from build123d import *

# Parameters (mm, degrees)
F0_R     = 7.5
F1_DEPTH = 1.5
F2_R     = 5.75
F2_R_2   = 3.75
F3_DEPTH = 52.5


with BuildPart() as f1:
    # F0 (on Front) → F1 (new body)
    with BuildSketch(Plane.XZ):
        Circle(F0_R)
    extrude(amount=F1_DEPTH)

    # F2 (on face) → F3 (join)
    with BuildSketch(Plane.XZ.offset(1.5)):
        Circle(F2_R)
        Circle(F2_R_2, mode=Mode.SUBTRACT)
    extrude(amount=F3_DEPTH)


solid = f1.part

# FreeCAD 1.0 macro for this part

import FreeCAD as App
import Part
import Sketcher
from FreeCAD import Vector
Q = App.Units.Quantity

doc = App.newDocument("Part")
params = doc.addObject("Spreadsheet::Sheet", "Params")
for row, (alias, value) in enumerate([
    ("sketch1_diameter", "15 mm"),
    ("pad1_length", "1.5 mm"),
    ("sketch2_diameter", "11.5 mm"),
    ("sketch2_diameter2", "7.5 mm"),
    ("pad2_length", "52.5 mm"),
], start=1):
    params.set(f"A{row}", alias)
    params.set(f"B{row}", "=" + value)
    params.setAlias(f"B{row}", alias)

body = doc.addObject("PartDesign::Body", "Body")

sketch1 = doc.addObject("Sketcher::SketchObject", "Sketch")
body.addObject(sketch1)
sketch1.AttachmentSupport = (doc.XZ_Plane, [""])
sketch1.MapMode = "FlatFace"
sketch1.addGeometry(Part.Circle(Vector(0, 0, 0), Vector(0, 0, 1), 7.5), False)
sketch1.addConstraint([
    Sketcher.Constraint("Coincident", 0, 3, -1, 1),
    Sketcher.Constraint("Diameter", 0, Q("15 mm")),
])
sketch1.setExpression("Constraints[1]", "Params.sketch1_diameter")
pad1 = doc.addObject("PartDesign::Pad", "Pad")
body.addObject(pad1)
pad1.Profile = sketch1
pad1.setExpression("Length", "Params.pad1_length")

sketch2 = doc.addObject("Sketcher::SketchObject", "Sketch001")
body.addObject(sketch2)
sketch2.AttachmentSupport = (doc.XZ_Plane, [""])
sketch2.MapMode = "FlatFace"
sketch2.AttachmentOffset = App.Placement(Vector(0, 0, 1.5), App.Rotation())
sketch2.addGeometry([
    Part.Circle(Vector(0, 0, 0), Vector(0, 0, 1), 5.75),
    Part.Circle(Vector(0, 0, 0), Vector(0, 0, 1), 3.75),
], False)
sketch2.addConstraint([
    Sketcher.Constraint("Coincident", 0, 3, -1, 1),
    Sketcher.Constraint("Coincident", 1, 3, -1, 1),
    Sketcher.Constraint("Diameter", 0, Q("11.5 mm")),
    Sketcher.Constraint("Diameter", 1, Q("7.5 mm")),
])
sketch2.setExpression("Constraints[2]", "Params.sketch2_diameter")
sketch2.setExpression("Constraints[3]", "Params.sketch2_diameter2")
pad2 = doc.addObject("PartDesign::Pad", "Pad001")
body.addObject(pad2)
pad2.Profile = sketch2
pad2.setExpression("Length", "Params.pad2_length")

doc.recompute()
